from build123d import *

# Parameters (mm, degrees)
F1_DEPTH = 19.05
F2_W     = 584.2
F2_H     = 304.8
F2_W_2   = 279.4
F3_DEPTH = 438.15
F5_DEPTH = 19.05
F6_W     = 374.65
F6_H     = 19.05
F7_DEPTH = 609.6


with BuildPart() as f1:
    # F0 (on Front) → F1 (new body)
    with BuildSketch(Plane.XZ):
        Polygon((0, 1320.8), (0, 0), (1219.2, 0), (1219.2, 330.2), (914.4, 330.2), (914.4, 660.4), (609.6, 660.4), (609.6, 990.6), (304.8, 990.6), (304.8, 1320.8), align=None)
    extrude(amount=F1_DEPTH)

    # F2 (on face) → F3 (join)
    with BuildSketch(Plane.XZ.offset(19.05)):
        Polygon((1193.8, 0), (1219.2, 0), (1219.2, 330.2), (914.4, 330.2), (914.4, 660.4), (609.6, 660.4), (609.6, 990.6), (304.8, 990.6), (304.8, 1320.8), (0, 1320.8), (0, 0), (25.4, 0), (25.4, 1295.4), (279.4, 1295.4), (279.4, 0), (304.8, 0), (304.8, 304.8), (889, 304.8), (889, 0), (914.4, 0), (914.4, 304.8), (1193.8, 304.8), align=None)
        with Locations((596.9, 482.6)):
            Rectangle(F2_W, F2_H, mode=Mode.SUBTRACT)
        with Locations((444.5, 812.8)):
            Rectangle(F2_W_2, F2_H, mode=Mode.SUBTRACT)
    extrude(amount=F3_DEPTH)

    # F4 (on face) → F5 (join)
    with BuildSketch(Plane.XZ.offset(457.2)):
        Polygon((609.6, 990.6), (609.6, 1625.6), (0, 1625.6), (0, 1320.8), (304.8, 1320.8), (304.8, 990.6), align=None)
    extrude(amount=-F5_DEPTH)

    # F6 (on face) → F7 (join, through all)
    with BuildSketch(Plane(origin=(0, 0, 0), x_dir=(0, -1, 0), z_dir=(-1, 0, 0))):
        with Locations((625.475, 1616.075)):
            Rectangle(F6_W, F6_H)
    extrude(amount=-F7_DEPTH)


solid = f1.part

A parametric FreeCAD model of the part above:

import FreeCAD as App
import Part
import Sketcher
Q = App.Units.Quantity

doc = App.newDocument("Part")
body = doc.addObject("PartDesign::Body", "Body")

sketch1 = body.newObject("Sketcher::SketchObject", "Sketch")
sketch1.AttachmentSupport = (doc.getObject("XZ_Plane"), [""])
sketch1.MapMode = "FlatFace"
sketch1.addGeometry([
    Part.LineSegment(App.Vector(0, 1321, 0), App.Vector(0, 0, 0)),
    Part.LineSegment(App.Vector(0, 0, 0), App.Vector(1219, 0, 0)),
    Part.LineSegment(App.Vector(1219, 0, 0), App.Vector(1219, 330, 0)),
    Part.LineSegment(App.Vector(1219, 330, 0), App.Vector(914, 330, 0)),
    Part.LineSegment(App.Vector(914, 330, 0), App.Vector(914, 660, 0)),
    Part.LineSegment(App.Vector(914, 660, 0), App.Vector(610, 660, 0)),
    Part.LineSegment(App.Vector(610, 660, 0), App.Vector(610, 991, 0)),
    Part.LineSegment(App.Vector(610, 991, 0), App.Vector(305, 991, 0)),
    Part.LineSegment(App.Vector(305, 991, 0), App.Vector(305, 1321, 0)),
    Part.LineSegment(App.Vector(305, 1321, 0), App.Vector(0, 1321, 0)),
], False)
sketch1.addConstraint([
    Sketcher.Constraint("Coincident", 0, 2, 1, 1),
    Sketcher.Constraint("Coincident", 1, 2, 2, 1),
    Sketcher.Constraint("Coincident", 2, 2, 3, 1),
    Sketcher.Constraint("Coincident", 3, 2, 4, 1),
    Sketcher.Constraint("Coincident", 4, 2, 5, 1),
    Sketcher.Constraint("Coincident", 5, 2, 6, 1),
    Sketcher.Constraint("Coincident", 6, 2, 7, 1),
    Sketcher.Constraint("Coincident", 7, 2, 8, 1),
    Sketcher.Constraint("Coincident", 8, 2, 9, 1),
    Sketcher.Constraint("Coincident", 9, 2, 0, 1),
    Sketcher.Constraint("Vertical", 0),
    Sketcher.Constraint("Horizontal", 1),
    Sketcher.Constraint("Vertical", 2),
    Sketcher.Constraint("Horizontal", 3),
    Sketcher.Constraint("Vertical", 4),
    Sketcher.Constraint("Horizontal", 5),
    Sketcher.Constraint("Vertical", 6),
    Sketcher.Constraint("Horizontal", 7),
    Sketcher.Constraint("Vertical", 8),
    Sketcher.Constraint("Horizontal", 9),
    Sketcher.Constraint("Coincident", 0, 2, -1, 1),
    Sketcher.Constraint("Equal", 3, 5),
    Sketcher.Constraint("Equal", 5, 7),
    Sketcher.Constraint("Equal", 7, 9),
    Sketcher.Constraint("Equal", 2, 4),
    Sketcher.Constraint("Equal", 4, 6),
    Sketcher.Constraint("Equal", 6, 8),
    Sketcher.Constraint("DistanceX", 1, 1, 1, 2, Q("48 in")),
    Sketcher.Constraint("DistanceY", 0, 2, 0, 1, Q("52 in")),
])
pad1 = body.newObject("PartDesign::Pad", "Pad")
pad1.Profile = sketch1
pad1.Length = Q("0.75 in")

sketch2 = body.newObject("Sketcher::SketchObject", "Sketch001")
sketch2.AttachmentSupport = (doc.getObject("XZ_Plane"), [""])
sketch2.MapMode = "FlatFace"
sketch2.AttachmentOffset = App.Placement(App.Vector(0, 0, 0.75 * 25.4), App.Rotation())
sketch2.addGeometry([
    Part.LineSegment(App.Vector(1194, 0, 0), App.Vector(1219, 0, 0)),
    Part.LineSegment(App.Vector(1219, 0, 0), App.Vector(1219, 330, 0)),
    Part.LineSegment(App.Vector(1219, 330, 0), App.Vector(914, 330, 0)),
    Part.LineSegment(App.Vector(914, 330, 0), App.Vector(914, 660, 0)),
    Part.LineSegment(App.Vector(914, 660, 0), App.Vector(610, 660, 0)),
    Part.LineSegment(App.Vector(610, 660, 0), App.Vector(610, 991, 0)),
    Part.LineSegment(App.Vector(610, 991, 0), App.Vector(305, 991, 0)),
    Part.LineSegment(App.Vector(305, 991, 0), App.Vector(305, 1321, 0)),
    Part.LineSegment(App.Vector(305, 1321, 0), App.Vector(0, 1321, 0)),
    Part.LineSegment(App.Vector(0, 1321, 0), App.Vector(0, 0, 0)),
    Part.LineSegment(App.Vector(0, 0, 0), App.Vector(25, 0, 0)),
    Part.LineSegment(App.Vector(25, 0, 0), App.Vector(25, 1295, 0)),
    Part.LineSegment(App.Vector(25, 1295, 0), App.Vector(279, 1295, 0)),
    Part.LineSegment(App.Vector(279, 1295, 0), App.Vector(279, 0, 0)),
    Part.LineSegment(App.Vector(279, 0, 0), App.Vector(305, 0, 0)),
    Part.LineSegment(App.Vector(305, 0, 0), App.Vector(305, 305, 0)),
    Part.LineSegment(App.Vector(305, 305, 0), App.Vector(889, 305, 0)),
    Part.LineSegment(App.Vector(889, 305, 0), App.Vector(889, 0, 0)),
    Part.LineSegment(App.Vector(889, 0, 0), App.Vector(914, 0, 0)),
    Part.LineSegment(App.Vector(914, 0, 0), App.Vector(914, 305, 0)),
    Part.LineSegment(App.Vector(914, 305, 0), App.Vector(1194, 305, 0)),
    Part.LineSegment(App.Vector(1194, 305, 0), App.Vector(1194, 0, 0)),
    Part.LineSegment(App.Vector(889, 330, 0), App.Vector(305, 330, 0)),
    Part.LineSegment(App.Vector(305, 330, 0), App.Vector(305, 635, 0)),
    Part.LineSegment(App.Vector(305, 635, 0), App.Vector(889, 635, 0)),
    Part.LineSegment(App.Vector(889, 635, 0), App.Vector(889, 330, 0)),
    Part.LineSegment(App.Vector(584, 660, 0), App.Vector(305, 660, 0)),
    Part.LineSegment(App.Vector(305, 660, 0), App.Vector(305, 965, 0)),
    Part.LineSegment(App.Vector(305, 965, 0), App.Vector(584, 965, 0)),
    Part.LineSegment(App.Vector(584, 965, 0), App.Vector(584, 660, 0)),
], False)
sketch2.addConstraint([
    Sketcher.Constraint("Coincident", 0, 2, 1, 1),
    Sketcher.Constraint("Coincident", 1, 2, 2, 1),
    Sketcher.Constraint("Coincident", 2, 2, 3, 1),
    Sketcher.Constraint("Coincident", 3, 2, 4, 1),
    Sketcher.Constraint("Coincident", 4, 2, 5, 1),
    Sketcher.Constraint("Coincident", 5, 2, 6, 1),
    Sketcher.Constraint("Coincident", 6, 2, 7, 1),
    Sketcher.Constraint("Coincident", 7, 2, 8, 1),
    Sketcher.Constraint("Coincident", 8, 2, 9, 1),
    Sketcher.Constraint("Coincident", 9, 2, 10, 1),
    Sketcher.Constraint("Coincident", 10, 2, 11, 1),
    Sketcher.Constraint("Coincident", 11, 2, 12, 1),
    Sketcher.Constraint("Coincident", 12, 2, 13, 1),
    Sketcher.Constraint("Coincident", 13, 2, 14, 1),
    Sketcher.Constraint("Coincident", 14, 2, 15, 1),
    Sketcher.Constraint("Coincident", 15, 2, 16, 1),
    Sketcher.Constraint("Coincident", 16, 2, 17, 1),
    Sketcher.Constraint("Coincident", 17, 2, 18, 1),
    Sketcher.Constraint("Coincident", 18, 2, 19, 1),
    Sketcher.Constraint("Coincident", 19, 2, 20, 1),
    Sketcher.Constraint("Coincident", 20, 2, 21, 1),
    Sketcher.Constraint("Coincident", 21, 2, 0, 1),
    Sketcher.Constraint("Coincident", 22, 2, 23, 1),
    Sketcher.Constraint("Coincident", 23, 2, 24, 1),
    Sketcher.Constraint("Coincident", 24, 2, 25, 1),
    Sketcher.Constraint("Coincident", 25, 2, 22, 1),
    Sketcher.Constraint("Coincident", 26, 2, 27, 1),
    Sketcher.Constraint("Coincident", 27, 2, 28, 1),
    Sketcher.Constraint("Coincident", 28, 2, 29, 1),
    Sketcher.Constraint("Coincident", 29, 2, 26, 1),
    Sketcher.Constraint("Horizontal", 0),
    Sketcher.Constraint("Vertical", 1),
    Sketcher.Constraint("Horizontal", 2),
    Sketcher.Constraint("Vertical", 3),
    Sketcher.Constraint("Horizontal", 4),
    Sketcher.Constraint("Vertical", 5),
    Sketcher.Constraint("Horizontal", 6),
    Sketcher.Constraint("Vertical", 7),
    Sketcher.Constraint("Horizontal", 8),
    Sketcher.Constraint("Vertical", 9),
    Sketcher.Constraint("Horizontal", 10),
    Sketcher.Constraint("Vertical", 11),
    Sketcher.Constraint("Horizontal", 12),
    Sketcher.Constraint("Vertical", 13),
    Sketcher.Constraint("Horizontal", 14),
    Sketcher.Constraint("Vertical", 15),
    Sketcher.Constraint("Horizontal", 16),
    Sketcher.Constraint("Vertical", 17),
    Sketcher.Constraint("Horizontal", 18),
    Sketcher.Constraint("Vertical", 19),
    Sketcher.Constraint("Horizontal", 20),
    Sketcher.Constraint("Vertical", 21),
    Sketcher.Constraint("Horizontal", 22),
    Sketcher.Constraint("Vertical", 23),
    Sketcher.Constraint("Horizontal", 24),
    Sketcher.Constraint("Vertical", 25),
    Sketcher.Constraint("Horizontal", 26),
    Sketcher.Constraint("Vertical", 27),
    Sketcher.Constraint("Horizontal", 28),
    Sketcher.Constraint("Vertical", 29),
    Sketcher.Constraint("Coincident", 9, 2, -1, 1),
    Sketcher.Constraint("PointOnObject", 0, 2, -1),
    Sketcher.Constraint("PointOnObject", 13, 2, -1),
    Sketcher.Constraint("PointOnObject", 17, 2, -1),
    Sketcher.Constraint("Horizontal", 16, 2, 19, 2),
    Sketcher.Constraint("Horizontal", 2, 2, 22, 2),
    Sketcher.Constraint("Horizontal", 4, 2, 26, 2),
    Sketcher.Constraint("Vertical", 7, 2, 14, 2),
    Sketcher.Constraint("Vertical", 3, 2, 18, 2),
    Sketcher.Constraint("Vertical", 15, 2, 22, 2),
    Sketcher.Constraint("Vertical", 17, 2, 24, 2),
    Sketcher.Constraint("Vertical", 23, 2, 26, 2),
    Sketcher.Constraint("Equal", 2, 4),
    Sketcher.Constraint("Equal", 4, 6),
    Sketcher.Constraint("Equal", 6, 8),
    Sketcher.Constraint("Equal", 0, 10),
    Sketcher.Constraint("Equal", 10, 14),
    Sketcher.Constraint("Equal", 14, 18),
    Sketcher.Constraint("Equal", 20, 26),
    Sketcher.Constraint("Equal", 1, 3),
    Sketcher.Constraint("Equal", 3, 5),
    Sketcher.Constraint("Equal", 5, 7),
    Sketcher.Constraint("Equal", 8, 15),
    Sketcher.Constraint("Equal", 21, 23),
    Sketcher.Constraint("Equal", 25, 27),
    Sketcher.Constraint("DistanceX", 0, 1, 0, 2, Q("1 in")),
    Sketcher.Constraint("DistanceX", 2, 2, 2, 1, Q("12 in")),
    Sketcher.Constraint("DistanceY", 1, 1, 1, 2, Q("13 in")),
    Sketcher.Constraint("DistanceY", 11, 1, 11, 2, Q("51 in")),
])
pad2 = body.newObject("PartDesign::Pad", "Pad001")
pad2.Profile = sketch2
pad2.Length = Q("17.25 in")

sketch3 = body.newObject("Sketcher::SketchObject", "Sketch002")
sketch3.AttachmentSupport = (doc.getObject("XZ_Plane"), [""])
sketch3.MapMode = "FlatFace"
sketch3.AttachmentOffset = App.Placement(App.Vector(0, 0, 18 * 25.4), App.Rotation())
sketch3.addGeometry([
    Part.LineSegment(App.Vector(610, 991, 0), App.Vector(610, 1626, 0)),
    Part.LineSegment(App.Vector(610, 1626, 0), App.Vector(0, 1626, 0)),
    Part.LineSegment(App.Vector(0, 1626, 0), App.Vector(0, 1321, 0)),
    Part.LineSegment(App.Vector(0, 1321, 0), App.Vector(305, 1321, 0)),
    Part.LineSegment(App.Vector(305, 1321, 0), App.Vector(305, 991, 0)),
    Part.LineSegment(App.Vector(305, 991, 0), App.Vector(610, 991, 0)),
], False)
sketch3.addConstraint([
    Sketcher.Constraint("Coincident", 0, 2, 1, 1),
    Sketcher.Constraint("Coincident", 1, 2, 2, 1),
    Sketcher.Constraint("Coincident", 2, 2, 3, 1),
    Sketcher.Constraint("Coincident", 3, 2, 4, 1),
    Sketcher.Constraint("Coincident", 4, 2, 5, 1),
    Sketcher.Constraint("Coincident", 5, 2, 0, 1),
    Sketcher.Constraint("Vertical", 0),
    Sketcher.Constraint("Horizontal", 1),
    Sketcher.Constraint("Vertical", 2),
    Sketcher.Constraint("Horizontal", 3),
    Sketcher.Constraint("Vertical", 4),
    Sketcher.Constraint("Horizontal", 5),
    Sketcher.Constraint("PointOnObject", 1, 2, -2),
    Sketcher.Constraint("Equal", 3, 5),
    Sketcher.Constraint("Equal", 5, 2),
    Sketcher.Constraint("DistanceX", 1, 2, 1, 1, Q("24 in")),
    Sketcher.Constraint("DistanceY", 0, 1, 0, 2, Q("25 in")),
    Sketcher.Constraint("DistanceY", -1, 1, 0, 2, Q("64 in")),
])
pad3 = body.newObject("PartDesign::Pad", "Pad002")
pad3.Profile = sketch3
pad3.Length = Q("0.75 in")
pad3.Reversed = True

sketch4 = body.newObject("Sketcher::SketchObject", "Sketch003")
sketch4.AttachmentSupport = (doc.getObject("YZ_Plane"), [""])
sketch4.MapMode = "FlatFace"
sketch4.addGeometry([
    Part.LineSegment(App.Vector(-438, 1626, 0), App.Vector(-438, 1607, 0)),
    Part.LineSegment(App.Vector(-438, 1607, 0), App.Vector(-813, 1607, 0)),
    Part.LineSegment(App.Vector(-813, 1607, 0), App.Vector(-813, 1626, 0)),
    Part.LineSegment(App.Vector(-813, 1626, 0), App.Vector(-438, 1626, 0)),
], False)
sketch4.addConstraint([
    Sketcher.Constraint("Coincident", 0, 2, 1, 1),
    Sketcher.Constraint("Coincident", 1, 2, 2, 1),
    Sketcher.Constraint("Coincident", 2, 2, 3, 1),
    Sketcher.Constraint("Coincident", 3, 2, 0, 1),
    Sketcher.Constraint("Vertical", 0),
    Sketcher.Constraint("Horizontal", 1),
    Sketcher.Constraint("Vertical", 2),
    Sketcher.Constraint("Horizontal", 3),
    Sketcher.Constraint("DistanceX", 1, 2, -1, 1, Q("32 in")),
    Sketcher.Constraint("DistanceY", -1, 1, 2, 2, Q("64 in")),
    Sketcher.Constraint("DistanceX", 1, 2, 1, 1, Q("14.75 in")),
    Sketcher.Constraint("DistanceY", 0, 2, 0, 1, Q("0.75 in")),
])
pad4 = body.newObject("PartDesign::Pad", "Pad003")
pad4.Profile = sketch4
pad4.Length = Q("24 in")

doc.recompute()
